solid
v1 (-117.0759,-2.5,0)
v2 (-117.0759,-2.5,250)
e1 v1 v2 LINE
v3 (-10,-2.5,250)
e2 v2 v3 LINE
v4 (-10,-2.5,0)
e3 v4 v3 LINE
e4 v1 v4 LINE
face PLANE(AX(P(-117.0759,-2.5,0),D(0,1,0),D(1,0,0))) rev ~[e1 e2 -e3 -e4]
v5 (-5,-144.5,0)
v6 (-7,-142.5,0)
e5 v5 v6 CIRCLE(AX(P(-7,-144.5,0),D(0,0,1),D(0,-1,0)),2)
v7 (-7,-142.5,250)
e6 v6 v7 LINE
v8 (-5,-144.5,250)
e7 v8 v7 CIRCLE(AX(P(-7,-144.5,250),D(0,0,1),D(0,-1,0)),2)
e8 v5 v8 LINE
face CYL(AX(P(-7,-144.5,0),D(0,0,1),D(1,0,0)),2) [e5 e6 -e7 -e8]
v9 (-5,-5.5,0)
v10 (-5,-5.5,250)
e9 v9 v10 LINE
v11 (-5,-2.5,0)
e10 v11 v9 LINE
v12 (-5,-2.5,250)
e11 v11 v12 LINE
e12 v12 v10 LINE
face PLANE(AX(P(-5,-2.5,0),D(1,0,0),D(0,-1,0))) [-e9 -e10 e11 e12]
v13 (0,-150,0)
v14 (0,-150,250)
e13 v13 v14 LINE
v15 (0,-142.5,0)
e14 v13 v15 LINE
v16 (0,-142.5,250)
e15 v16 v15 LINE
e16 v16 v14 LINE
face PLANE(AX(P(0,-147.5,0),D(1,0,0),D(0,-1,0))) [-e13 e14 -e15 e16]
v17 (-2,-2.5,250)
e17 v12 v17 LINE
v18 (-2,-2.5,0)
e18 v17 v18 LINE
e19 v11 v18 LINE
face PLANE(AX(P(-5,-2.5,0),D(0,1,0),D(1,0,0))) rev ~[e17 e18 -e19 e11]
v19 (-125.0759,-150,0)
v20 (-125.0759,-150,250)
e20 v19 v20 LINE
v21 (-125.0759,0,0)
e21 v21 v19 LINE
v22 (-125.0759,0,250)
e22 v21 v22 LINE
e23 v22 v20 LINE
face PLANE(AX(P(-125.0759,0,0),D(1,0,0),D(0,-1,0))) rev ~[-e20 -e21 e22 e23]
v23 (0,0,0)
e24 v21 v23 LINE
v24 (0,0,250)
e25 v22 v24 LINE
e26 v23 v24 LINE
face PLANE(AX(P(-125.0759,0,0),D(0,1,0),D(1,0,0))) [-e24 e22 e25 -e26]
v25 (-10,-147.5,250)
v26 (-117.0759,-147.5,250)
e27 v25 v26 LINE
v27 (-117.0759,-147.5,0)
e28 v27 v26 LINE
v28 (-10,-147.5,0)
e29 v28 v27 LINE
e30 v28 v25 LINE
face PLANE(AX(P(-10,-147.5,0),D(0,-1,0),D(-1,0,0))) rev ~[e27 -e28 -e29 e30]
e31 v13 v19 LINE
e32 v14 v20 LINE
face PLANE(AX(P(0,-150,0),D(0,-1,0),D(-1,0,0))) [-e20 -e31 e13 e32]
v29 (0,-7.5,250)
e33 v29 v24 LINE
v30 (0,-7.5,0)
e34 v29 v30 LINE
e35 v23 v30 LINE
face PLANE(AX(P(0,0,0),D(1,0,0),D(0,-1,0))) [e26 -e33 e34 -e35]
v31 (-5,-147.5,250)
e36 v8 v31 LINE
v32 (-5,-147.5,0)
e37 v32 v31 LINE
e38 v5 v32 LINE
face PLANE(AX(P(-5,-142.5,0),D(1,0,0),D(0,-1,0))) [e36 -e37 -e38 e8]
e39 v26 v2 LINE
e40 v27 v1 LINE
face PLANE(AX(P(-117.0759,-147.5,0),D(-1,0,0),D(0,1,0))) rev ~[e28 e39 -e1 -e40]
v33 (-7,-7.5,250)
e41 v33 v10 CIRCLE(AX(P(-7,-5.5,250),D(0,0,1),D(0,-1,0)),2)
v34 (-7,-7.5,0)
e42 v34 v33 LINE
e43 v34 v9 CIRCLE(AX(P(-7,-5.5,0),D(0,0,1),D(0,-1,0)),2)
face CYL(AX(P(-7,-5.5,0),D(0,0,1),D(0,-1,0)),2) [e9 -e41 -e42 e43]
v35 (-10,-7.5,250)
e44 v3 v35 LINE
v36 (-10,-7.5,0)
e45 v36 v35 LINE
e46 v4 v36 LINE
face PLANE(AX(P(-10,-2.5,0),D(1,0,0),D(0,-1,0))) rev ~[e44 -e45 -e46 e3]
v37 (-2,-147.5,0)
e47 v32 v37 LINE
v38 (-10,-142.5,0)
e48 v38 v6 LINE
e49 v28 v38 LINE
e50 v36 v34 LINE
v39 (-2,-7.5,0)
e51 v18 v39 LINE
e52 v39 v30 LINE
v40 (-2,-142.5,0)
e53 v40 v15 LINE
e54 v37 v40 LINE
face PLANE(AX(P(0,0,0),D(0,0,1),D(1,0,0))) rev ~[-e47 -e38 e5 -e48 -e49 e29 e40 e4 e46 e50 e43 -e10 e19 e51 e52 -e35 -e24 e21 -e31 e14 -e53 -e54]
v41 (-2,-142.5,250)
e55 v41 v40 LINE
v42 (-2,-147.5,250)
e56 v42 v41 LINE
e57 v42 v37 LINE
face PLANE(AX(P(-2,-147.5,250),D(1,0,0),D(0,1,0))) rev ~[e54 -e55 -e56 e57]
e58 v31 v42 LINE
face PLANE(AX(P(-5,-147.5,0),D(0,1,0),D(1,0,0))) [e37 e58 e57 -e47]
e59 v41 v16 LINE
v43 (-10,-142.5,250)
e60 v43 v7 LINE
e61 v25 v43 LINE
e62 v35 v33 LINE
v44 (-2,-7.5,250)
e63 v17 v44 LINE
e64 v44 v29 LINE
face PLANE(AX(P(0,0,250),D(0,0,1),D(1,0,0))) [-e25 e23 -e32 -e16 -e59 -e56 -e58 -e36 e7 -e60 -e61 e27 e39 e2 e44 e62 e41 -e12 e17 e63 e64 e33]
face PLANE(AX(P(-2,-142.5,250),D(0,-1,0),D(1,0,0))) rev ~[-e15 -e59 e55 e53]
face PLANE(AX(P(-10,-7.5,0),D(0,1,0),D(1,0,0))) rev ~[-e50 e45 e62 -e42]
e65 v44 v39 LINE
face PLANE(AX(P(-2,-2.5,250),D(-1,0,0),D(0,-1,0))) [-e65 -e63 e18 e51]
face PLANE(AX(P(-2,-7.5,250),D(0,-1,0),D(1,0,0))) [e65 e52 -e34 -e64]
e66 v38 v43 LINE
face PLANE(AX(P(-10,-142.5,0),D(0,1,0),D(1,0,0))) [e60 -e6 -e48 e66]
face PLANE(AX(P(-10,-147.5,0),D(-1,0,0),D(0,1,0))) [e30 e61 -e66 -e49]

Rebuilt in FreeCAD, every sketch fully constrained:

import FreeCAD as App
import Part
import Sketcher

V = App.Vector
Q = App.Units.Quantity


def edges_at(feature, points):
    """Names of the edges that pass closest to the given points."""
    edges = feature.Shape.Edges
    near = lambda p: min(range(len(edges)), key=lambda i: edges[i].distToShape(Part.Vertex(*p))[0])
    return sorted({f"Edge{near(p) + 1}" for p in points})


def add_polygon(sketch, points):
    """Adds a closed chain of lines whose ends are joined by coincident constraints."""
    first, n = sketch.GeometryCount, len(points)
    for a, b in zip(points, points[1:] + points[:1]):
        sketch.addGeometry(Part.LineSegment(App.Vector(*a, 0), App.Vector(*b, 0)), False)
    for i in range(n):
        sketch.addConstraint(Sketcher.Constraint("Coincident", first + i, 2, first + (i + 1) % n, 1))

doc = App.newDocument("Part")
body = doc.addObject("PartDesign::Body", "Body")

sketch1 = body.newObject("Sketcher::SketchObject", "Sketch")
sketch1.AttachmentSupport = (doc.getObject("XY_Plane"), [""])
sketch1.MapMode = "FlatFace"
add_polygon(sketch1, [(-125.0759, -150), (0, -150), (0, -147.5), (-5, -147.5), (-5, -142.5), (-10, -142.5), (-10, -147.5), (-117.0759, -147.5), (-117.0759, -2.5), (-10, -2.5), (-10, -7.5), (-5, -7.5), (-5, -2.5), (0, -2.5), (0, 0), (-125.0759, 0)])
sketch1.addConstraint([
    Sketcher.Constraint("Horizontal", 0),
    Sketcher.Constraint("Vertical", 1),
    Sketcher.Constraint("Horizontal", 2),
    Sketcher.Constraint("Vertical", 3),
    Sketcher.Constraint("Horizontal", 4),
    Sketcher.Constraint("Vertical", 5),
    Sketcher.Constraint("Horizontal", 6),
    Sketcher.Constraint("Vertical", 7),
    Sketcher.Constraint("Horizontal", 8),
    Sketcher.Constraint("Vertical", 9),
    Sketcher.Constraint("Horizontal", 10),
    Sketcher.Constraint("Vertical", 11),
    Sketcher.Constraint("Horizontal", 12),
    Sketcher.Constraint("Vertical", 13),
    Sketcher.Constraint("Horizontal", 14),
    Sketcher.Constraint("Vertical", 15),
    Sketcher.Constraint("Coincident", 13, 2, -1, 1),
    Sketcher.Constraint("PointOnObject", 0, 2, -2),
    Sketcher.Constraint("Horizontal", 2, 2, 5, 2),
    Sketcher.Constraint("Horizontal", 8, 2, 11, 2),
    Sketcher.Constraint("Vertical", 5, 2, 8, 2),
    Sketcher.Constraint("Vertical", 3, 2, 10, 2),
    Sketcher.Constraint("Equal", 2, 4),
    Sketcher.Constraint("Equal", 12, 3),
    Sketcher.Constraint("Equal", 5, 9),
    Sketcher.Constraint("Equal", 1, 13),
    Sketcher.Constraint("DistanceX", 2, 2, 2, 1, Q("5 mm")),
    Sketcher.Constraint("DistanceY", 7, 1, 7, 2, Q("145 mm")),
    Sketcher.Constraint("DistanceY", 15, 2, 15, 1, Q("150 mm")),
    Sketcher.Constraint("DistanceX", 14, 2, 7, 2, Q("8 mm")),
    Sketcher.Constraint("DistanceX", 0, 1, 0, 2, Q("125.076 mm")),
])
pad1 = body.newObject("PartDesign::Pad", "Pad")
pad1.Profile = sketch1
pad1.Length = 250

sketch2 = body.newObject("Sketcher::SketchObject", "Sketch001")
sketch2.AttachmentSupport = (doc.getObject("XY_Plane"), [""])
sketch2.MapMode = "FlatFace"
sketch2.AttachmentOffset = App.Placement(V(0, 0, 250), App.Rotation())
add_polygon(sketch2, [(0, -2.5), (-2, -2.5), (-2, -7.5), (0, -7.5)])
add_polygon(sketch2, [(-2, -142.5), (-2, -147.5), (0, -147.5), (0, -142.5)])
sketch2.addConstraint([
    Sketcher.Constraint("Horizontal", 0),
    Sketcher.Constraint("Vertical", 1),
    Sketcher.Constraint("Horizontal", 2),
    Sketcher.Constraint("Vertical", 3),
    Sketcher.Constraint("Vertical", 4),
    Sketcher.Constraint("Horizontal", 5),
    Sketcher.Constraint("Vertical", 6),
    Sketcher.Constraint("Horizontal", 7),
    Sketcher.Constraint("PointOnObject", 2, 2, -2),
    Sketcher.Constraint("PointOnObject", 5, 2, -2),
    Sketcher.Constraint("Vertical", 1, 2, 4, 2),
    Sketcher.Constraint("Equal", 3, 4),
    Sketcher.Constraint("DistanceX", 0, 2, 0, 1, Q("2 mm")),
    Sketcher.Constraint("DistanceY", 1, 2, 1, 1, Q("5 mm")),
    Sketcher.Constraint("DistanceY", 4, 2, 1, 2, Q("140 mm")),
    Sketcher.Constraint("DistanceY", 0, 2, -1, 1, Q("2.5 mm")),
])
pad2 = body.newObject("PartDesign::Pad", "Pad001")
pad2.Profile = sketch2
pad2.Length = 250
pad2.Reversed = True
doc.recompute()

fillet = body.newObject("PartDesign::Fillet", "Fillet")
fillet.Base = (pad2, edges_at(pad2, [(-5, -142.5, 125), (-5, -7.5, 125)]))
fillet.Radius = 2

doc.recompute()
